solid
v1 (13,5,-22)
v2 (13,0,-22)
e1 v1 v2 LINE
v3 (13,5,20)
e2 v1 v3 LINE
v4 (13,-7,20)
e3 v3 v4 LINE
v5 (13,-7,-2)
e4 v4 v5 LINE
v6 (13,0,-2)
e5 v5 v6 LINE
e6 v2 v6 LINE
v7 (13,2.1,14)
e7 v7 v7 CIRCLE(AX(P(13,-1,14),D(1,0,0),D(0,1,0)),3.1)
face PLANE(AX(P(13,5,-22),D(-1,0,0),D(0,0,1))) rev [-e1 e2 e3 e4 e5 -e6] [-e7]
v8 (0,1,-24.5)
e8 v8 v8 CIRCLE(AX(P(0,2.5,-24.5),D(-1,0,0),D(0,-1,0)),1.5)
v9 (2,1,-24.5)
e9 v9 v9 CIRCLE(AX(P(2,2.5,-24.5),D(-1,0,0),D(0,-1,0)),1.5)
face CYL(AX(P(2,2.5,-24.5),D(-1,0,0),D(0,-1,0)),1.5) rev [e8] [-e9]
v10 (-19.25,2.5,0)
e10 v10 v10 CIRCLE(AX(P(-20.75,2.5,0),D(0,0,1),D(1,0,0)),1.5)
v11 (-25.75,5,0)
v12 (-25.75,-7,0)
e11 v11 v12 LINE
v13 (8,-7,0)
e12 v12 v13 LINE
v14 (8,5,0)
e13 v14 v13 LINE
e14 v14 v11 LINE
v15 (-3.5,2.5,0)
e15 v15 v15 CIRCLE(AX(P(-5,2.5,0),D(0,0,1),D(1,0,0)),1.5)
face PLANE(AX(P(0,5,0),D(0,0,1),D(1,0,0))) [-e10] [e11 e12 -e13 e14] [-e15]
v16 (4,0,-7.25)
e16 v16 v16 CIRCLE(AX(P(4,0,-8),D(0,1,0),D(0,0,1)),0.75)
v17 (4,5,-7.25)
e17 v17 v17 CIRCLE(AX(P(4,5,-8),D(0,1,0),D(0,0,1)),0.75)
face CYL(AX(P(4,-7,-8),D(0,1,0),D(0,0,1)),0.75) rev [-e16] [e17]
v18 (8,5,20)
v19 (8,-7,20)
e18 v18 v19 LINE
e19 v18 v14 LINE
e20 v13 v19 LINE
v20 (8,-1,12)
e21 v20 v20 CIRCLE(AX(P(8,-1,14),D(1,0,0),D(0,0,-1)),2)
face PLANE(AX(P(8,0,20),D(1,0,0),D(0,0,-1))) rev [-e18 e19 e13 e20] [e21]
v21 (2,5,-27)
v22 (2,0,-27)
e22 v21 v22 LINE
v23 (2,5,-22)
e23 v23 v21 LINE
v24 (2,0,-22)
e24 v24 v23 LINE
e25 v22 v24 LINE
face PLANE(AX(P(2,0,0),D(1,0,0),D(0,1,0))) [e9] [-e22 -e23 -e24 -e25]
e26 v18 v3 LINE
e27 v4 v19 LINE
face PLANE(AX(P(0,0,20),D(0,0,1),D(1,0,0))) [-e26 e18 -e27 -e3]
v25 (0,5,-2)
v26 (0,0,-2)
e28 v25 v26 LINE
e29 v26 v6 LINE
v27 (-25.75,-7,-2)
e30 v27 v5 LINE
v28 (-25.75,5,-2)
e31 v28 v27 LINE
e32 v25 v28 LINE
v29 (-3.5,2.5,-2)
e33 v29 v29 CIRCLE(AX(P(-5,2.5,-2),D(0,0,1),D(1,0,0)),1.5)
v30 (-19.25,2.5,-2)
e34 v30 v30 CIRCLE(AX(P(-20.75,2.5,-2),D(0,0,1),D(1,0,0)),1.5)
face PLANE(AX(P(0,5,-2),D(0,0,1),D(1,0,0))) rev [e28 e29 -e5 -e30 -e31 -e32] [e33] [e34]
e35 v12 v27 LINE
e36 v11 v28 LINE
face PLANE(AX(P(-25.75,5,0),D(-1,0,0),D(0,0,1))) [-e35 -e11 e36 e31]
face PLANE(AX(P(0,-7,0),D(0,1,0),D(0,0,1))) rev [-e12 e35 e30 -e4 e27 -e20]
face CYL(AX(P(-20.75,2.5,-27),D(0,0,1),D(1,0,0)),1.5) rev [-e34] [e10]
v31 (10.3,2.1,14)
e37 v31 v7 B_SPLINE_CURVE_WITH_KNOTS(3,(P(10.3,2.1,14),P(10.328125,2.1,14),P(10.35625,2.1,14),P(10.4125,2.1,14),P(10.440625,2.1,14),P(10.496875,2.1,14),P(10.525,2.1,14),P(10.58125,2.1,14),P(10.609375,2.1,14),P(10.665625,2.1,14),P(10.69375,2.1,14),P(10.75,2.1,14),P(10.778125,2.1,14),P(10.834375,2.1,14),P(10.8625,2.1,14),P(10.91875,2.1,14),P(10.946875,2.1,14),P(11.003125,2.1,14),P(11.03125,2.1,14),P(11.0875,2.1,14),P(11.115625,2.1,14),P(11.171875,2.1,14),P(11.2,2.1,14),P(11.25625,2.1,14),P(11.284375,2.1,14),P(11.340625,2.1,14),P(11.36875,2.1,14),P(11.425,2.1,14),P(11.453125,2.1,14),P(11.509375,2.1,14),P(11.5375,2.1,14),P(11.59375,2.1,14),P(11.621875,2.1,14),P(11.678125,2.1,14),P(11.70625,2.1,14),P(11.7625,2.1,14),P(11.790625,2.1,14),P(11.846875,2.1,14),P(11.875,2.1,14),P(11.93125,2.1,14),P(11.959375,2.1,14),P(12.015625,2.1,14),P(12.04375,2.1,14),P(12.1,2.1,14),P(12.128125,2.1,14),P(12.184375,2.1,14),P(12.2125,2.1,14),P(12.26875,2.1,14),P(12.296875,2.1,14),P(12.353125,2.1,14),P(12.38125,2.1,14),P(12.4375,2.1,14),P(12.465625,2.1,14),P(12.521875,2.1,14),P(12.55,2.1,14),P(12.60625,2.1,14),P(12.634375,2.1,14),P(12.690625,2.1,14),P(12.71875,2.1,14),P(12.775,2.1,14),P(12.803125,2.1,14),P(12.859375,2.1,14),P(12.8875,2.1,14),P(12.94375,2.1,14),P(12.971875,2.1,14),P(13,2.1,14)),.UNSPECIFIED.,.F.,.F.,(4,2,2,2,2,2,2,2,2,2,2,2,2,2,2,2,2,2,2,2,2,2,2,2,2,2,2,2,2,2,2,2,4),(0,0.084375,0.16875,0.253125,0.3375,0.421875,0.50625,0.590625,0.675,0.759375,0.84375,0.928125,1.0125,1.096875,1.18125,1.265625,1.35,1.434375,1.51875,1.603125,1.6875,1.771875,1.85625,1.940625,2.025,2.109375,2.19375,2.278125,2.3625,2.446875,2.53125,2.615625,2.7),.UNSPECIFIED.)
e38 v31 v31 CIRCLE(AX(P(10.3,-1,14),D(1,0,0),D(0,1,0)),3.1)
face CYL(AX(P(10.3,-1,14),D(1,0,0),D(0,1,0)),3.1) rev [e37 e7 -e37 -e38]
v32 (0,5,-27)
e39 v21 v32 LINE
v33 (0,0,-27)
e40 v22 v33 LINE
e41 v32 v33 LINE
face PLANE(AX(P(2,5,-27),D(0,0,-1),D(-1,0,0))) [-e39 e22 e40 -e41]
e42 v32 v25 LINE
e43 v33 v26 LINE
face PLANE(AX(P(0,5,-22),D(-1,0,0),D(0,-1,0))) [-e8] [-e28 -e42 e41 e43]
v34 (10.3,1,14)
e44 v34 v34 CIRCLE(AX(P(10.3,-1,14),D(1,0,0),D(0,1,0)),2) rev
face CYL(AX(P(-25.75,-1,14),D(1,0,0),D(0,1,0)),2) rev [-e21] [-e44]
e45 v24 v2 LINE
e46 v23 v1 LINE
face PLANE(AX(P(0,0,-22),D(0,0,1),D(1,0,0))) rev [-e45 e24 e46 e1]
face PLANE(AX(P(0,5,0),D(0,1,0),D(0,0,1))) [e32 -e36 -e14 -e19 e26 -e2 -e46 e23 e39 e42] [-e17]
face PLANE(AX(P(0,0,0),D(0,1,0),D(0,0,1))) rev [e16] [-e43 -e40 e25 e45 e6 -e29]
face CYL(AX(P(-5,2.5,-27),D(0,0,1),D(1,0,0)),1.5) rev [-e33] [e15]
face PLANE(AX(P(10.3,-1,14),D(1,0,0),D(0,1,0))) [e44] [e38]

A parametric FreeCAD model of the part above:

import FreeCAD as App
import Part
import Sketcher
from FreeCAD import Vector
Q = App.Units.Quantity

doc = App.newDocument("Part")
body = doc.addObject("PartDesign::Body", "Body")

# Sketch on XZ plane
sketch1 = body.newObject("Sketcher::SketchObject", "Sketch")
sketch1.AttachmentSupport = (doc.getObject("XZ_Plane"), [""])
sketch1.MapMode = "FlatFace"
sketch1.addGeometry([
    Part.LineSegment(Vector(-25.8, -2, 0), Vector(-25.8, 0, 0)),
    Part.LineSegment(Vector(-25.8, 0, 0), Vector(0, 0, 0)),
    Part.LineSegment(Vector(0, 0, 0), Vector(0, -2, 0)),
    Part.LineSegment(Vector(0, -2, 0), Vector(-25.8, -2, 0)),
], False)
sketch1.addConstraint([
    Sketcher.Constraint("Coincident", 0, 2, 1, 1),
    Sketcher.Constraint("Coincident", 1, 2, 2, 1),
    Sketcher.Constraint("Coincident", 2, 2, 3, 1),
    Sketcher.Constraint("Coincident", 3, 2, 0, 1),
    Sketcher.Constraint("Vertical", 0),
    Sketcher.Constraint("Horizontal", 1),
    Sketcher.Constraint("Vertical", 2),
    Sketcher.Constraint("Horizontal", 3),
    Sketcher.Constraint("Coincident", 1, 2, -1, 1),
    Sketcher.Constraint("DistanceY", 0, 1, 0, 2, Q("2 mm")),
    Sketcher.Constraint("DistanceX", 1, 1, 1, 2, Q("25.75 mm")),
])
pad1 = body.newObject("PartDesign::Pad", "Pad")
pad1.Profile = sketch1
pad1.Length = 5
pad1.Reversed = True

# Sketch on XY plane
sketch2 = body.newObject("Sketcher::SketchObject", "Sketch001")
sketch2.AttachmentSupport = (doc.getObject("XY_Plane"), [""])
sketch2.MapMode = "FlatFace"
sketch2.addGeometry([
    Part.LineSegment(Vector(13, 5, 0), Vector(13, 0, 0)),
    Part.LineSegment(Vector(13, 0, 0), Vector(0, 0, 0)),
    Part.LineSegment(Vector(0, 0, 0), Vector(0, 5, 0)),
    Part.LineSegment(Vector(0, 5, 0), Vector(13, 5, 0)),
], False)
sketch2.addConstraint([
    Sketcher.Constraint("Coincident", 0, 2, 1, 1),
    Sketcher.Constraint("Coincident", 1, 2, 2, 1),
    Sketcher.Constraint("Coincident", 2, 2, 3, 1),
    Sketcher.Constraint("Coincident", 3, 2, 0, 1),
    Sketcher.Constraint("Vertical", 0),
    Sketcher.Constraint("Horizontal", 1),
    Sketcher.Constraint("Vertical", 2),
    Sketcher.Constraint("Horizontal", 3),
    Sketcher.Constraint("Coincident", 1, 2, -1, 1),
    Sketcher.Constraint("DistanceX", 1, 2, 1, 1, Q("13 mm")),
    Sketcher.Constraint("DistanceY", 0, 2, 0, 1, Q("5 mm")),
])
pad2 = body.newObject("PartDesign::Pad", "Pad001")
pad2.Profile = sketch2
pad2.Length = 22
pad2.Reversed = True

# Sketch on XY plane
sketch3 = body.newObject("Sketcher::SketchObject", "Sketch002")
sketch3.AttachmentSupport = (doc.getObject("XY_Plane"), [""])
sketch3.MapMode = "FlatFace"
sketch3.addGeometry([
    Part.LineSegment(Vector(13, 5, 0), Vector(13, 0, 0)),
    Part.LineSegment(Vector(13, 0, 0), Vector(8, 0, 0)),
    Part.LineSegment(Vector(8, 0, 0), Vector(8, 5, 0)),
    Part.LineSegment(Vector(8, 5, 0), Vector(13, 5, 0)),
], False)
sketch3.addConstraint([
    Sketcher.Constraint("Coincident", 0, 2, 1, 1),
    Sketcher.Constraint("Coincident", 1, 2, 2, 1),
    Sketcher.Constraint("Coincident", 2, 2, 3, 1),
    Sketcher.Constraint("Coincident", 3, 2, 0, 1),
    Sketcher.Constraint("Vertical", 0),
    Sketcher.Constraint("Horizontal", 1),
    Sketcher.Constraint("Vertical", 2),
    Sketcher.Constraint("Horizontal", 3),
    Sketcher.Constraint("PointOnObject", 0, 2, -1),
    Sketcher.Constraint("Equal", 3, 0),
    Sketcher.Constraint("DistanceX", 1, 2, 1, 1, Q("5 mm")),
    Sketcher.Constraint("DistanceX", -1, 1, 0, 2, Q("13 mm")),
])
pad3 = body.newObject("PartDesign::Pad", "Pad002")
pad3.Profile = sketch3
pad3.Length = 20

# Sketch on XZ plane
sketch4 = body.newObject("Sketcher::SketchObject", "Sketch003")
sketch4.AttachmentSupport = (doc.getObject("XZ_Plane"), [""])
sketch4.MapMode = "FlatFace"
sketch4.addGeometry([
    Part.LineSegment(Vector(-25.8, 0, 0), Vector(-25.8, -2, 0)),  # 0
    Part.LineSegment(Vector(-25.8, -2, 0), Vector(13, -2, 0)),  # 1
    Part.LineSegment(Vector(13, -2, 0), Vector(13, 20, 0)),  # 2
    Part.LineSegment(Vector(13, 20, 0), Vector(8, 20, 0)),  # 3
    Part.LineSegment(Vector(8, 20, 0), Vector(8, 0, 0)),  # 4
    Part.LineSegment(Vector(8, 0, 0), Vector(-25.8, 0, 0)),  # 5
], False)
sketch4.addConstraint([
    Sketcher.Constraint("Coincident", 0, 2, 1, 1),
    Sketcher.Constraint("Coincident", 1, 2, 2, 1),
    Sketcher.Constraint("Coincident", 2, 2, 3, 1),
    Sketcher.Constraint("Coincident", 3, 2, 4, 1),
    Sketcher.Constraint("Coincident", 4, 2, 5, 1),
    Sketcher.Constraint("Coincident", 5, 2, 0, 1),
    Sketcher.Constraint("Vertical", 0),
    Sketcher.Constraint("Horizontal", 1),
    Sketcher.Constraint("Vertical", 2),
    Sketcher.Constraint("Horizontal", 3),
    Sketcher.Constraint("Vertical", 4),
    Sketcher.Constraint("Horizontal", 5),
    Sketcher.Constraint("PointOnObject", 4, 2, -1),
    Sketcher.Constraint("DistanceX", 3, 2, 3, 1, Q("5 mm")),
    Sketcher.Constraint("DistanceY", 0, 2, 0, 1, Q("2 mm")),
    Sketcher.Constraint("DistanceY", 2, 1, 2, 2, Q("22 mm")),
    Sketcher.Constraint("DistanceX", -1, 1, 1, 2, Q("13 mm")),
    Sketcher.Constraint("DistanceX", 1, 1, 1, 2, Q("38.75 mm")),
])
pad4 = body.newObject("PartDesign::Pad", "Pad003")
pad4.Profile = sketch4
pad4.Length = 7

# Sketch on YZ plane
sketch5 = body.newObject("Sketcher::SketchObject", "Sketch004")
sketch5.AttachmentSupport = (doc.getObject("YZ_Plane"), [""])
sketch5.MapMode = "FlatFace"
sketch5.AttachmentOffset = App.Placement(Vector(0, 0, 13), App.Rotation())
sketch5.addGeometry(Part.Circle(Vector(-1, 14, 0), Vector(0, 0, 1), 2), False)
sketch5.addConstraint([
    Sketcher.Constraint("Diameter", 0, Q("4 mm")),
    Sketcher.Constraint("DistanceX", 0, 3, -1, 1, Q("1 mm")),
    Sketcher.Constraint("DistanceY", -1, 1, 0, 3, Q("14 mm")),
])
pocket1 = body.newObject("PartDesign::Pocket", "Pocket")
pocket1.Profile = sketch5
pocket1.Type = "ThroughAll"

# Sketch on YZ plane
sketch6 = body.newObject("Sketcher::SketchObject", "Sketch005")
sketch6.AttachmentSupport = (doc.getObject("YZ_Plane"), [""])
sketch6.MapMode = "FlatFace"
sketch6.AttachmentOffset = App.Placement(Vector(0, 0, 13), App.Rotation())
sketch6.addGeometry(Part.Circle(Vector(-1, 14, 0), Vector(0, 0, 1), 3.1), False)
sketch6.addConstraint([
    Sketcher.Constraint("Diameter", 0, Q("6.2 mm")),
    Sketcher.Constraint("DistanceX", 0, 3, -1, 1, Q("1 mm")),
    Sketcher.Constraint("DistanceY", -1, 1, 0, 3, Q("14 mm")),
])
pocket2 = body.newObject("PartDesign::Pocket", "Pocket001")
pocket2.Profile = sketch6
pocket2.Length = 2.7

# Sketch on YZ plane
sketch7 = body.newObject("Sketcher::SketchObject", "Sketch006")
sketch7.AttachmentSupport = (doc.getObject("YZ_Plane"), [""])
sketch7.MapMode = "FlatFace"
sketch7.addGeometry([
    Part.LineSegment(Vector(5, -27, 0), Vector(0, -27, 0)),  # 0
    Part.LineSegment(Vector(0, -27, 0), Vector(0, -22, 0)),  # 1
    Part.LineSegment(Vector(0, -22, 0), Vector(5, -22, 0)),  # 2
    Part.LineSegment(Vector(5, -22, 0), Vector(5, -27, 0)),  # 3
    Part.Circle(Vector(2.5, -24.5, 0), Vector(0, 0, 1), 1.5),  # 4
], False)
sketch7.addConstraint([
    Sketcher.Constraint("Coincident", 0, 2, 1, 1),
    Sketcher.Constraint("Coincident", 1, 2, 2, 1),
    Sketcher.Constraint("Coincident", 2, 2, 3, 1),
    Sketcher.Constraint("Coincident", 3, 2, 0, 1),
    Sketcher.Constraint("Horizontal", 0),
    Sketcher.Constraint("Vertical", 1),
    Sketcher.Constraint("Horizontal", 2),
    Sketcher.Constraint("Vertical", 3),
    Sketcher.Constraint("PointOnObject", 0, 2, -2),
    Sketcher.Constraint("Equal", 2, 1),
    Sketcher.Constraint("Diameter", 4, Q("3 mm")),
    Sketcher.Constraint("DistanceX", 0, 2, 0, 1, Q("5 mm")),
    Sketcher.Constraint("DistanceY", 0, 2, -1, 1, Q("27 mm")),
    Sketcher.Constraint("DistanceX", -1, 1, 4, 3, Q("2.5 mm")),
    Sketcher.Constraint("DistanceY", 4, 3, -1, 1, Q("24.5 mm")),
])
pad5 = body.newObject("PartDesign::Pad", "Pad004")
pad5.Profile = sketch7
pad5.Length = 2

# Sketch on XY plane
sketch8 = body.newObject("Sketcher::SketchObject", "Sketch007")
sketch8.AttachmentSupport = (doc.getObject("XY_Plane"), [""])
sketch8.MapMode = "FlatFace"
sketch8.addGeometry([
    Part.Circle(Vector(-20.8, 2.5, 0), Vector(0, 0, 1), 1.5),
    Part.Circle(Vector(-5, 2.5, 0), Vector(0, 0, 1), 1.5),
], False)
sketch8.addConstraint([
    Sketcher.Constraint("Equal", 0, 1),
    Sketcher.Constraint("Horizontal", 0, 3, 1, 3),
    Sketcher.Constraint("Diameter", 0, Q("3 mm")),
    Sketcher.Constraint("DistanceX", 1, 3, -1, 1, Q("5 mm")),
    Sketcher.Constraint("DistanceY", -1, 1, 0, 3, Q("2.5 mm")),
    Sketcher.Constraint("DistanceX", 0, 3, -1, 1, Q("20.75 mm")),
])
pocket3 = body.newObject("PartDesign::Pocket", "Pocket002")
pocket3.Profile = sketch8
pocket3.Type = "ThroughAll"

# Sketch on XZ plane
sketch9 = body.newObject("Sketcher::SketchObject", "Sketch008")
sketch9.AttachmentSupport = (doc.getObject("XZ_Plane"), [""])
sketch9.MapMode = "FlatFace"
sketch9.AttachmentOffset = App.Placement(Vector(0, 0, -5), App.Rotation())
sketch9.addGeometry(Part.Circle(Vector(4, -8, 0), Vector(0, 0, 1), 0.8), False)
sketch9.addConstraint([
    Sketcher.Constraint("Diameter", 0, Q("1.5 mm")),
    Sketcher.Constraint("DistanceX", -1, 1, 0, 3, Q("4 mm")),
    Sketcher.Constraint("DistanceY", 0, 3, -1, 1, Q("8 mm")),
])
pocket4 = body.newObject("PartDesign::Pocket", "Pocket003")
pocket4.Profile = sketch9
pocket4.Type = "ThroughAll"
pocket4.Reversed = True

doc.recompute()
